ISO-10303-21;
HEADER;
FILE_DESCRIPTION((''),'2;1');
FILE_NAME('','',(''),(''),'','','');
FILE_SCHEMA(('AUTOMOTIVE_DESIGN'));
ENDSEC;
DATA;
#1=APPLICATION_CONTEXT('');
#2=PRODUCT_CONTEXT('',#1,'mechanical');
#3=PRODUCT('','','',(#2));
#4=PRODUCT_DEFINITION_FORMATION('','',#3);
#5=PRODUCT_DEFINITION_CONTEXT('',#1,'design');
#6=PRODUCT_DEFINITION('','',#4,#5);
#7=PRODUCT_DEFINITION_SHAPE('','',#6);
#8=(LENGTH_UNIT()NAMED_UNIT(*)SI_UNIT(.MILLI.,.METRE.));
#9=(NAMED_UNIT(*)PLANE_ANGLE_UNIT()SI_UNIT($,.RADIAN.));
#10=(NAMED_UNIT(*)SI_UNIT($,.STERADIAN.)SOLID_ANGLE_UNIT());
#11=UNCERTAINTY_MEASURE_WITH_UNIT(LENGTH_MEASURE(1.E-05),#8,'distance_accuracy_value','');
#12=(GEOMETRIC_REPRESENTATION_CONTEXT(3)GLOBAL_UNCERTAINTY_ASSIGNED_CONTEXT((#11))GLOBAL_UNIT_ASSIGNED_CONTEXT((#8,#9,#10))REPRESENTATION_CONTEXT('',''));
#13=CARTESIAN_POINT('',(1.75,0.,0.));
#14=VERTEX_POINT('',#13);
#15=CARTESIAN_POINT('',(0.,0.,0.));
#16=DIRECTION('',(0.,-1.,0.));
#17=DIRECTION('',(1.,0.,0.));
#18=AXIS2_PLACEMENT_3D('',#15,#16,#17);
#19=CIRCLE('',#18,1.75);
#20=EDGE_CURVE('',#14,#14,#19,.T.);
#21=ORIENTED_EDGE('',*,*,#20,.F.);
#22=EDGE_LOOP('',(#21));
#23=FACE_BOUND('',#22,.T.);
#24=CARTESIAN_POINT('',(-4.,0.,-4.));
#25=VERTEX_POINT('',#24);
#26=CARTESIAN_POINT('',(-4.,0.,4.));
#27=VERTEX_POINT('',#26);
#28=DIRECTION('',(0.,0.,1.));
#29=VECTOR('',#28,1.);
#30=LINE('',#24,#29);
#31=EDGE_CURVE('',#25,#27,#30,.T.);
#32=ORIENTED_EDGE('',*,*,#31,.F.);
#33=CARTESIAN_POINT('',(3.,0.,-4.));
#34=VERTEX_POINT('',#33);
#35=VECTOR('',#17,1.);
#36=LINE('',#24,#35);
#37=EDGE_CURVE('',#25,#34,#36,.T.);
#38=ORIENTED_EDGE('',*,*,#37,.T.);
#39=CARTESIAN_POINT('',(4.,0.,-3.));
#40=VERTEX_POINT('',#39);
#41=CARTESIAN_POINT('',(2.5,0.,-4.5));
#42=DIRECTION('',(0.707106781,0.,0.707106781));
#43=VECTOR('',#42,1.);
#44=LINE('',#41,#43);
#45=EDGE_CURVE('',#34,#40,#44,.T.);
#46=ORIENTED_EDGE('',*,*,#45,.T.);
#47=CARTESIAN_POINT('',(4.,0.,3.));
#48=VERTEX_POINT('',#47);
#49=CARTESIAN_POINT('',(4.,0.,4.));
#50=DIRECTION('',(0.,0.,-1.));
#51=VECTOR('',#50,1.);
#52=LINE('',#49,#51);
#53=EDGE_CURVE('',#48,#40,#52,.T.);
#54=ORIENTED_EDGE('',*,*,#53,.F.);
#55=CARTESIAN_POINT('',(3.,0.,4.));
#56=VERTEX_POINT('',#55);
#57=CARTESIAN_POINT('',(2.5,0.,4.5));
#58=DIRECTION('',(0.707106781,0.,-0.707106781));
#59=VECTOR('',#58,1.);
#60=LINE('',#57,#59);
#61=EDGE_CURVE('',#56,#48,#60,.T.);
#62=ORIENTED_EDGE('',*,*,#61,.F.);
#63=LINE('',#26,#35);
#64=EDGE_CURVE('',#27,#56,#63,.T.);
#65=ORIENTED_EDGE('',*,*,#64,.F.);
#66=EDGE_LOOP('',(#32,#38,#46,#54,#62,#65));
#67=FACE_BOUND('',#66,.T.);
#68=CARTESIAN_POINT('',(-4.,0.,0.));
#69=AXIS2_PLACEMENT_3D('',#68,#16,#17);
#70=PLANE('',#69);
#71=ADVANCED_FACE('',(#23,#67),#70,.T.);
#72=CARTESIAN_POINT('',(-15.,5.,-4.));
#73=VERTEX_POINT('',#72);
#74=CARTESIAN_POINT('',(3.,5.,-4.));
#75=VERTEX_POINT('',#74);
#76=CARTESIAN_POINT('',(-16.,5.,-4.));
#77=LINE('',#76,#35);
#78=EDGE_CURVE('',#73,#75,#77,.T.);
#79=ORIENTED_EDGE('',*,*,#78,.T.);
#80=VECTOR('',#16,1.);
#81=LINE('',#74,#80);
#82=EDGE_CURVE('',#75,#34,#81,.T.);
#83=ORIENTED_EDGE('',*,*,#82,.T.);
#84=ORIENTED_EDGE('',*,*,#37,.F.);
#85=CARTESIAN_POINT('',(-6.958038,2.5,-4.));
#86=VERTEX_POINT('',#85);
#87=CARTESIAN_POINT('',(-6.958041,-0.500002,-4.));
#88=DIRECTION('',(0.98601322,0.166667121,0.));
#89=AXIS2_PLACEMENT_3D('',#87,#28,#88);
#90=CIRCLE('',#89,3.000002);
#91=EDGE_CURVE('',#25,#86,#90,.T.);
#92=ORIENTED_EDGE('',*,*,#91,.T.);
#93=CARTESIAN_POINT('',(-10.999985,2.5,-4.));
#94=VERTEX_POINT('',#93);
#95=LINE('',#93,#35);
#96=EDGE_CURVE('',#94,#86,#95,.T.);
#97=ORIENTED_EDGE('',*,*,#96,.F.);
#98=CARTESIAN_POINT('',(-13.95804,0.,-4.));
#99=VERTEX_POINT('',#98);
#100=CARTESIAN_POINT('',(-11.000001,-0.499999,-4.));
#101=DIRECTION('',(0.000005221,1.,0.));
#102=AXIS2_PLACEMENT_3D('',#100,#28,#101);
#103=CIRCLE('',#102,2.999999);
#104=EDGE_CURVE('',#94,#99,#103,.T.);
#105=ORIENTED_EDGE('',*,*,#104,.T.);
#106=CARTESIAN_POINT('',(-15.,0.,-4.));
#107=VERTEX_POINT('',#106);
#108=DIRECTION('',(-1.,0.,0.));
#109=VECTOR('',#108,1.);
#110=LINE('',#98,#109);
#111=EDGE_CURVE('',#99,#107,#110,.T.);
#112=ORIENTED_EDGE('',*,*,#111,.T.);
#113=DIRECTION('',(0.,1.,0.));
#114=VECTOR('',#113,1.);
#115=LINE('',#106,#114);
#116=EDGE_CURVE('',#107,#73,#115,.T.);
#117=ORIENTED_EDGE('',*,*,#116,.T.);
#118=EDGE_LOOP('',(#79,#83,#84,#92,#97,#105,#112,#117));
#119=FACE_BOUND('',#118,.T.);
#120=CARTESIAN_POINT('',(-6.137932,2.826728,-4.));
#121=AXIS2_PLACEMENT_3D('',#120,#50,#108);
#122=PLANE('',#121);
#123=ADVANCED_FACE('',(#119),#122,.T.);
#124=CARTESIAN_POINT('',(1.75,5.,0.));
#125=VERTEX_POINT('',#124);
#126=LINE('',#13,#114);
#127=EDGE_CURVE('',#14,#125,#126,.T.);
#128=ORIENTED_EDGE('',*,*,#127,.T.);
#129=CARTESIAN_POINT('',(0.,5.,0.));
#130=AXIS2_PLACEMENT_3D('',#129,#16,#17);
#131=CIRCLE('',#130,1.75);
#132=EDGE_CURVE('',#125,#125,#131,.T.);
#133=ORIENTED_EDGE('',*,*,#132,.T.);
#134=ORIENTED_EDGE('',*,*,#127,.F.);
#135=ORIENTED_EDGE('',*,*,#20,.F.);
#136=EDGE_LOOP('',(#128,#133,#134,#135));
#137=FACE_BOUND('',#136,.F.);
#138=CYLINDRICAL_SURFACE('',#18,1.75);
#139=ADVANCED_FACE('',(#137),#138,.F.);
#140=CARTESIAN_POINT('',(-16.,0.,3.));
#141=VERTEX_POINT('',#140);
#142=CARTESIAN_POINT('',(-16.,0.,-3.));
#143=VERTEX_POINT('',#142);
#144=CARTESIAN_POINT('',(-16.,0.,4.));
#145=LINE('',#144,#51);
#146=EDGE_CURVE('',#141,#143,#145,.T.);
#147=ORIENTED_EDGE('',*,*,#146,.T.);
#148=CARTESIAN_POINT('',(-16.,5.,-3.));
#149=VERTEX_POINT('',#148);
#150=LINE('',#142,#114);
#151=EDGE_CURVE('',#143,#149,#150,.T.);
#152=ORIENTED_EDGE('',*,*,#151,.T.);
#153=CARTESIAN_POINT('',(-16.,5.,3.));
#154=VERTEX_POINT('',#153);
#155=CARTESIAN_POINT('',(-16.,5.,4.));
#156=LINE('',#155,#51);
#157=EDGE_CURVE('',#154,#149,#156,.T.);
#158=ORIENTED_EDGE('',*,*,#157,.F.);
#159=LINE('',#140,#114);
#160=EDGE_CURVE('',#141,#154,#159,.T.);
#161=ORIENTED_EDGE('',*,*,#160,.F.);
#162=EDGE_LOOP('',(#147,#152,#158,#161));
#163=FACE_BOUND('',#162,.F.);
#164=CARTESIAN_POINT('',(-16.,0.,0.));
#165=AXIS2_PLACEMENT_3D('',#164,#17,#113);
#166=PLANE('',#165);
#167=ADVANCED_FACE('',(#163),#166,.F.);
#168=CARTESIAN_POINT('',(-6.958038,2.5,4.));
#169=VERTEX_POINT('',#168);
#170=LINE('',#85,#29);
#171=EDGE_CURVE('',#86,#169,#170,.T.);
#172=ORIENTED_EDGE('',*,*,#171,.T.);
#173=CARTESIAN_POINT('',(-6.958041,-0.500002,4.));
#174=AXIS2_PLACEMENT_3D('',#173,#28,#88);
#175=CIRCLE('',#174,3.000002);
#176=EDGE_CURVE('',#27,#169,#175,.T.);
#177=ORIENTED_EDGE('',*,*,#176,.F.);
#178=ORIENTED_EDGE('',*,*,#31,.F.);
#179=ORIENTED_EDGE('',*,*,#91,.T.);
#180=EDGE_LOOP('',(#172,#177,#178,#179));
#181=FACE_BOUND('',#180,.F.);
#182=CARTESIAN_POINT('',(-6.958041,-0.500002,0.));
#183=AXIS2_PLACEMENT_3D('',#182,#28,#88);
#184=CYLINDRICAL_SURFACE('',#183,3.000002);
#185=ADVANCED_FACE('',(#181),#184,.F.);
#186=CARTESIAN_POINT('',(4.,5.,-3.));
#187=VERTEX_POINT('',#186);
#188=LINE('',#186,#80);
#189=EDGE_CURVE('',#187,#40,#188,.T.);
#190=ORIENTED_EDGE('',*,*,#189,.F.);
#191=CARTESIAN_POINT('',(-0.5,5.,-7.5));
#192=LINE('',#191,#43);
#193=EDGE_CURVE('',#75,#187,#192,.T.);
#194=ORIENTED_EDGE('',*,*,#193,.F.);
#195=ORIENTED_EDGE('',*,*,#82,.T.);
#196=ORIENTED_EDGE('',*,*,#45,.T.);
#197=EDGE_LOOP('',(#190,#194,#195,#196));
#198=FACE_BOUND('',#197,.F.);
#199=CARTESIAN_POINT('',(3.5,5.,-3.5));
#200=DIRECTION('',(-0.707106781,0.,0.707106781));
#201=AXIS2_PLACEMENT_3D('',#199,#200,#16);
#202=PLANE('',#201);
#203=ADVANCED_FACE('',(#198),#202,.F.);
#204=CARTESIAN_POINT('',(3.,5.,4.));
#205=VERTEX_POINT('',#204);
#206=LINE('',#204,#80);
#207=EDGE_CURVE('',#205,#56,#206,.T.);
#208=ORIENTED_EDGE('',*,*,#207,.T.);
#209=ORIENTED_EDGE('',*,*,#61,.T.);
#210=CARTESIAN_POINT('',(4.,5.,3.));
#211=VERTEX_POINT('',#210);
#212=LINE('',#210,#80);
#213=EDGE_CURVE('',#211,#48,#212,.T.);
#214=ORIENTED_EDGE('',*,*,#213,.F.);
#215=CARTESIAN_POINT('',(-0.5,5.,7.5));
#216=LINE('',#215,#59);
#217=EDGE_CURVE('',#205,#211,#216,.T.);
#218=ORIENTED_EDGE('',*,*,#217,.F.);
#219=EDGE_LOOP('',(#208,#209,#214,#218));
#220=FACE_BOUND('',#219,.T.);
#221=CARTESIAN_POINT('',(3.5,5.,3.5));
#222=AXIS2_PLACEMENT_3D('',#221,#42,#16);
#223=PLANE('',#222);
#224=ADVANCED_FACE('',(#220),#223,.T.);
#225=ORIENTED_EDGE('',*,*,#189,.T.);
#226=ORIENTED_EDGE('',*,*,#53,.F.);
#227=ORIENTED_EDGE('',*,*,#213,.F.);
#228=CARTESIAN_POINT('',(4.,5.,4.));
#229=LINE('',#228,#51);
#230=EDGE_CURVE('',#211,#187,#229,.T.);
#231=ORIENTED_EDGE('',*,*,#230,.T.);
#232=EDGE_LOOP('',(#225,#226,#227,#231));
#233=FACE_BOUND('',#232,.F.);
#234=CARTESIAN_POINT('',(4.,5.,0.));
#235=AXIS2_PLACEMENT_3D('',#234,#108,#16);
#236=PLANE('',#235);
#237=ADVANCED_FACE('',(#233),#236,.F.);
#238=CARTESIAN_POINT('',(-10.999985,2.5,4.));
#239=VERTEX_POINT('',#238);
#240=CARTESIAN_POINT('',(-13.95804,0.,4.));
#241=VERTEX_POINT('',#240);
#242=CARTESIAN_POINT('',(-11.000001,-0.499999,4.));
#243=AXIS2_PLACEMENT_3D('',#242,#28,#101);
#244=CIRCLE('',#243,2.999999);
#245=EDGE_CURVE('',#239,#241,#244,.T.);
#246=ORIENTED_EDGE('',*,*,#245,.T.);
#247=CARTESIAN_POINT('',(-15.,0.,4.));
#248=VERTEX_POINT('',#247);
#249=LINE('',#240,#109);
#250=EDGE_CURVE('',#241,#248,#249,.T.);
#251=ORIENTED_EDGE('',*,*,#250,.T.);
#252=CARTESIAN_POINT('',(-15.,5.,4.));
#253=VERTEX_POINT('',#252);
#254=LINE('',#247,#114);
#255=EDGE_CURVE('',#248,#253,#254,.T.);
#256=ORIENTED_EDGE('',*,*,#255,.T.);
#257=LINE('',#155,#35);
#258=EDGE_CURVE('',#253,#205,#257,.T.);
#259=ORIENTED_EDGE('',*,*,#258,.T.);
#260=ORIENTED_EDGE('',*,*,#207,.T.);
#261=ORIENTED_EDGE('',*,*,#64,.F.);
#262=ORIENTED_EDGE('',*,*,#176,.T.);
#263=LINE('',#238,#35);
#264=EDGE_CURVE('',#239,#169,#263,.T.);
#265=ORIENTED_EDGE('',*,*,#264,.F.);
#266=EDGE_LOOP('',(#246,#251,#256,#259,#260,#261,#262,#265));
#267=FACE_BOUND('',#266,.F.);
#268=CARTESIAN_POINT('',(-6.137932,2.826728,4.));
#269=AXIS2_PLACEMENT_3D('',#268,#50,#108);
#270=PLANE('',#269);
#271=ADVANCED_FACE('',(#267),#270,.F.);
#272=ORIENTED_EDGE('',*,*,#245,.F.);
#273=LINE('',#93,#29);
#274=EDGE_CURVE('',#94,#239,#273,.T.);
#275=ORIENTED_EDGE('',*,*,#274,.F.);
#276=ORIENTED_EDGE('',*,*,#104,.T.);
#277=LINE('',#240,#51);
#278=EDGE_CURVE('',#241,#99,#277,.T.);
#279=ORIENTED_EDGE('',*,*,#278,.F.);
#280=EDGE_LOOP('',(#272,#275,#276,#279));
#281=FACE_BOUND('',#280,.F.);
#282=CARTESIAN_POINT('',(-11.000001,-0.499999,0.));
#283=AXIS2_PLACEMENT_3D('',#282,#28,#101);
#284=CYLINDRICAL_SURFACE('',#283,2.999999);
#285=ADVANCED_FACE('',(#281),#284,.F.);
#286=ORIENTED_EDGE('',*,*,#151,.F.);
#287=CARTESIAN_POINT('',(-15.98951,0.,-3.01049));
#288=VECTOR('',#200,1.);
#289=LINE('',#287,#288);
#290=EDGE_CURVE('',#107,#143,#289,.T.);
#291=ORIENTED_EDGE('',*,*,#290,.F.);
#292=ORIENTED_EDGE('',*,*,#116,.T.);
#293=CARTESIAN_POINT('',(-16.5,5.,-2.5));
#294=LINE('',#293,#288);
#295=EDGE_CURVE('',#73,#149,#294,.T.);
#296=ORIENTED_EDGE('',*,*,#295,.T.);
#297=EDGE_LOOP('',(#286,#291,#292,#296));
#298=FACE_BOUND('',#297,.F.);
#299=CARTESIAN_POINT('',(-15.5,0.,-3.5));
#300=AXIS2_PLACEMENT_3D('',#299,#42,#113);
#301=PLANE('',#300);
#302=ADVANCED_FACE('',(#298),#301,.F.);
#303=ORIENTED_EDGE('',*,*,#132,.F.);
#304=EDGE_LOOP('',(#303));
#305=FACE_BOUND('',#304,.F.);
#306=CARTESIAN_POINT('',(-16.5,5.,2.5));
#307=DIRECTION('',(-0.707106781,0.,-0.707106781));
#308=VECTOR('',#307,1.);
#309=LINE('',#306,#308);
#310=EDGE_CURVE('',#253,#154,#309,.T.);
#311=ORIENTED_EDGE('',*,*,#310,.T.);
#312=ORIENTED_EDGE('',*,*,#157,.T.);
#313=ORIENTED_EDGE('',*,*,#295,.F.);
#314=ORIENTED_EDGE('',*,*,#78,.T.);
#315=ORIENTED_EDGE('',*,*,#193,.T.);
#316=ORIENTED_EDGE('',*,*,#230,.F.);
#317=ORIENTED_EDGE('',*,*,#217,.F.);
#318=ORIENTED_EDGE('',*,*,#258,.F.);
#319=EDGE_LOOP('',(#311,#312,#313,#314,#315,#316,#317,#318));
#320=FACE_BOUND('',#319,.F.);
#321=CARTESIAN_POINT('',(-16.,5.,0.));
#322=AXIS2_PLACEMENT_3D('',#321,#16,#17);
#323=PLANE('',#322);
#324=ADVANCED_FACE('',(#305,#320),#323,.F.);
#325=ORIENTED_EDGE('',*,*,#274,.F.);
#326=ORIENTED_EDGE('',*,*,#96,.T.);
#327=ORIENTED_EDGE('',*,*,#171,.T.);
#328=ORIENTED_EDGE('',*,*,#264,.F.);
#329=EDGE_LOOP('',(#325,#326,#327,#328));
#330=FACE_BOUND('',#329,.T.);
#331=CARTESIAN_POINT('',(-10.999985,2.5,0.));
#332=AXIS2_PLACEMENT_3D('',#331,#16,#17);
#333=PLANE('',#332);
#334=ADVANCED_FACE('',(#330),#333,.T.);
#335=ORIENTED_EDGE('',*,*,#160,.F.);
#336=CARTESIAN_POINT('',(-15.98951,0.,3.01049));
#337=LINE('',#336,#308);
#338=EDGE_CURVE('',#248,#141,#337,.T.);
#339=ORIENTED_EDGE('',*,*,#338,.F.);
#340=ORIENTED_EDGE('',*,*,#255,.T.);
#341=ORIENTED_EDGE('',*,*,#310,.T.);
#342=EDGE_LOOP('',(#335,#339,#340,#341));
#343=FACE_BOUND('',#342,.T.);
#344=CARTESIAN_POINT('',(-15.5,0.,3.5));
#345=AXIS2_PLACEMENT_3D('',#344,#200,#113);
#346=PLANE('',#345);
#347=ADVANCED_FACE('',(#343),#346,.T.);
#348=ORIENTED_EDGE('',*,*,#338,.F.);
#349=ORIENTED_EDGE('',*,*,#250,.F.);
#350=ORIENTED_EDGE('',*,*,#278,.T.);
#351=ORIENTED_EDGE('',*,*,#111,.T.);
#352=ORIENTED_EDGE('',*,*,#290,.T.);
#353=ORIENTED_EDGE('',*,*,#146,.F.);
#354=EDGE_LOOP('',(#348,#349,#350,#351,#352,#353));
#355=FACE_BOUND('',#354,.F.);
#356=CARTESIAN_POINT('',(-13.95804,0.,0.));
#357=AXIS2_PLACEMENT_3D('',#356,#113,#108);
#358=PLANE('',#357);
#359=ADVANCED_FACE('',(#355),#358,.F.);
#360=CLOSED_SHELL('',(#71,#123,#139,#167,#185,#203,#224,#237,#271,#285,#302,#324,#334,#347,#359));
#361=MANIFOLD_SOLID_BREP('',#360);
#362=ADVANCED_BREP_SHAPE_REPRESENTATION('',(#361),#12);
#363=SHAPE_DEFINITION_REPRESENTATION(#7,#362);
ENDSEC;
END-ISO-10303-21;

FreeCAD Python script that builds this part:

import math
import FreeCAD as App
import Part
import Sketcher

V = App.Vector
Q = App.Units.Quantity


def edges_at(feature, points):
    """Names of the edges that pass closest to the given points."""
    edges = feature.Shape.Edges
    near = lambda p: min(range(len(edges)), key=lambda i: edges[i].distToShape(Part.Vertex(*p))[0])
    return sorted({f"Edge{near(p) + 1}" for p in points})

doc = App.newDocument("Part")
params = doc.addObject("Spreadsheet::Sheet", "Params")
for row, (alias, value) in enumerate([
    ("sketch1_radius", "2.999999 mm"),
    ("sketch1_radius2", "3.000002 mm"),
    ("sketch1_width", "8 mm"),
    ("sketch1_width2", "20 mm"),
    ("sketch1_height", "5 mm"),
    ("pad1_length", "4 mm"),
    ("pad1_length2", "4 mm"),
    ("sketch2_diameter", "3.5 mm"),
    ("pocket1_length", "5 mm"),
    ("chamfer_size", "1 mm"),
], start=1):
    params.set(f"A{row}", alias)
    params.set(f"B{row}", "=" + value)
    params.setAlias(f"B{row}", alias)

body = doc.addObject("PartDesign::Body", "Body")

# Sketch on XY plane
sketch1 = body.newObject("Sketcher::SketchObject", "Sketch")
sketch1.AttachmentSupport = (doc.getObject("XY_Plane"), [""])
sketch1.MapMode = "FlatFace"
sketch1.addGeometry(Part.ArcOfCircle(Part.Circle(V(-11, -0.5, 0), V(0, 0, 1), 3), math.radians(90), math.radians(170)), False)
sketch1.addGeometry(Part.LineSegment(V(-11, 2.5, 0), V(-7, 2.5, 0)), False)
sketch1.addGeometry(Part.ArcOfCircle(Part.Circle(V(-7, -0.5, 0), V(0, 0, 1), 3), math.radians(10), math.radians(90)), False)
sketch1.addGeometry(Part.LineSegment(V(-4, 0, 0), V(4, 0, 0)), False)
sketch1.addGeometry(Part.LineSegment(V(4, 0, 0), V(4, 5, 0)), False)
sketch1.addGeometry(Part.LineSegment(V(4, 5, 0), V(-16, 5, 0)), False)
sketch1.addGeometry(Part.LineSegment(V(-16, 5, 0), V(-16, 0, 0)), False)
sketch1.addGeometry(Part.LineSegment(V(-16, 0, 0), V(-14, 0, 0)), False)
sketch1.addConstraint(Sketcher.Constraint("Coincident", 0, 1, 1, 1))
sketch1.addConstraint(Sketcher.Constraint("Tangent", 1, 2, 2, 2))
sketch1.addConstraint(Sketcher.Constraint("Coincident", 2, 1, 3, 1))
sketch1.addConstraint(Sketcher.Constraint("Coincident", 3, 2, 4, 1))
sketch1.addConstraint(Sketcher.Constraint("Coincident", 4, 2, 5, 1))
sketch1.addConstraint(Sketcher.Constraint("Coincident", 5, 2, 6, 1))
sketch1.addConstraint(Sketcher.Constraint("Coincident", 6, 2, 7, 1))
sketch1.addConstraint(Sketcher.Constraint("Coincident", 7, 2, 0, 2))
sketch1.addConstraint(Sketcher.Constraint("Horizontal", 1))
sketch1.addConstraint(Sketcher.Constraint("Horizontal", 3))
sketch1.addConstraint(Sketcher.Constraint("Vertical", 4))
sketch1.addConstraint(Sketcher.Constraint("Horizontal", 5))
sketch1.addConstraint(Sketcher.Constraint("Vertical", 6))
sketch1.addConstraint(Sketcher.Constraint("Horizontal", 7))
sketch1.addConstraint(Sketcher.Constraint("Symmetric", 2, 1, 3, 2, -1, 1))
sketch1.addConstraint(Sketcher.Constraint("PointOnObject", 6, 2, -1))
sketch1.addConstraint(Sketcher.Constraint("Radius", 0, Q("2.999999 mm")))
sketch1.addConstraint(Sketcher.Constraint("Radius", 2, Q("3.000002 mm")))
sketch1.addConstraint(Sketcher.Constraint("DistanceX", 3, 1, 3, 2, Q("8 mm")))
sketch1.addConstraint(Sketcher.Constraint("DistanceX", 5, 2, 5, 1, Q("20 mm")))
sketch1.addConstraint(Sketcher.Constraint("DistanceY", 4, 1, 4, 2, Q("5 mm")))
sketch1.addConstraint(Sketcher.Constraint("DistanceX", 0, 3, -1, 1, Q("11.000001 mm")))
sketch1.addConstraint(Sketcher.Constraint("DistanceY", 0, 3, -1, 1, Q("0.499999 mm")))
sketch1.addConstraint(Sketcher.Constraint("DistanceX", 1, 1, 1, 2, Q("4.041947 mm")))
sketch1.setExpression("Constraints[16]", "Params.sketch1_radius")
sketch1.setExpression("Constraints[17]", "Params.sketch1_radius2")
sketch1.setExpression("Constraints[18]", "Params.sketch1_width")
sketch1.setExpression("Constraints[19]", "Params.sketch1_width2")
sketch1.setExpression("Constraints[20]", "Params.sketch1_height")
pad1 = body.newObject("PartDesign::Pad", "Pad")
pad1.Profile = sketch1
pad1.Type = "TwoLengths"
pad1.setExpression("Length", "Params.pad1_length")
pad1.setExpression("Length2", "Params.pad1_length2")

# Sketch on XZ plane
sketch2 = body.newObject("Sketcher::SketchObject", "Sketch001")
sketch2.AttachmentSupport = (doc.getObject("XZ_Plane"), [""])
sketch2.MapMode = "FlatFace"
sketch2.addGeometry(Part.Circle(V(0, 0, 0), V(0, 0, 1), 1.8), False)
sketch2.addConstraint(Sketcher.Constraint("Coincident", 0, 3, -1, 1))
sketch2.addConstraint(Sketcher.Constraint("Diameter", 0, Q("3.5 mm")))
sketch2.setExpression("Constraints[1]", "Params.sketch2_diameter")
pocket1 = body.newObject("PartDesign::Pocket", "Pocket")
pocket1.Profile = sketch2
pocket1.setExpression("Length", "Params.pocket1_length")
doc.recompute()

chamfer = body.newObject("PartDesign::Chamfer", "Chamfer")
chamfer.Base = (pocket1, edges_at(pocket1, [
    (-16, 2.5, 4),
    (-16, 2.5, -4),
    (4, 2.5, -4),
    (4, 2.5, 4),
]))
chamfer.setExpression("Size", "Params.chamfer_size")

doc.recompute()
